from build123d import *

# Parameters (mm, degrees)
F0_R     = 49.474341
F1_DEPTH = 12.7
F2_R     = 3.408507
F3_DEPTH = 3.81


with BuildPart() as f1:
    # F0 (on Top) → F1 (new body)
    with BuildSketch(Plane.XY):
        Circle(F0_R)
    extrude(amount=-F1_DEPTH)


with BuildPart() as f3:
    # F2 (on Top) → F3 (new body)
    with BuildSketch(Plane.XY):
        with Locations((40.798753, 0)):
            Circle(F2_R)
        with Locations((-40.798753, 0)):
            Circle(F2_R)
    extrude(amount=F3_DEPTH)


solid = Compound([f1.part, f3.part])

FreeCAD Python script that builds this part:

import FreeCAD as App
import Part
import Sketcher
Q = App.Units.Quantity

doc = App.newDocument("Part")
body = doc.addObject("PartDesign::Body", "Body")

# Sketch on XY plane
sketch1 = body.newObject("Sketcher::SketchObject", "Sketch")
sketch1.AttachmentSupport = (doc.getObject("XY_Plane"), [""])
sketch1.MapMode = "FlatFace"
sketch1.addGeometry(Part.Circle(App.Vector(0, 0, 0), App.Vector(0, 0, 1), 49), False)
sketch1.addConstraint([
    Sketcher.Constraint("Coincident", 0, 3, -1, 1),
    Sketcher.Constraint("Diameter", 0, Q("98.948682 mm")),
])
pad1 = body.newObject("PartDesign::Pad", "Pad")
pad1.Profile = sketch1
pad1.Length = Q("0.5 in")
pad1.Reversed = True
body2 = doc.addObject("PartDesign::Body", "Body001")
body2.AllowCompound = True

# Sketch on XY plane
sketch2 = body2.newObject("Sketcher::SketchObject", "Sketch001")
sketch2.AttachmentSupport = (doc.getObject("XY_Plane001"), [""])
sketch2.MapMode = "FlatFace"
sketch2.addGeometry([
    Part.Circle(App.Vector(40.8, 0, 0), App.Vector(0, 0, 1), 3.4),
    Part.Circle(App.Vector(-40.8, 0, 0), App.Vector(0, 0, 1), 3.4),
], False)
sketch2.addConstraint([
    Sketcher.Constraint("Equal", 0, 1),
    Sketcher.Constraint("Symmetric", 0, 3, 1, 3, -1, 1),
    Sketcher.Constraint("PointOnObject", 0, 3, -1),
    Sketcher.Constraint("Diameter", 0, Q("6.817014 mm")),
    Sketcher.Constraint("DistanceX", -1, 1, 0, 3, Q("40.798753 mm")),
])
pad2 = body2.newObject("PartDesign::Pad", "Pad001")
pad2.Profile = sketch2
pad2.Length = Q("0.15 in")

doc.recompute()
